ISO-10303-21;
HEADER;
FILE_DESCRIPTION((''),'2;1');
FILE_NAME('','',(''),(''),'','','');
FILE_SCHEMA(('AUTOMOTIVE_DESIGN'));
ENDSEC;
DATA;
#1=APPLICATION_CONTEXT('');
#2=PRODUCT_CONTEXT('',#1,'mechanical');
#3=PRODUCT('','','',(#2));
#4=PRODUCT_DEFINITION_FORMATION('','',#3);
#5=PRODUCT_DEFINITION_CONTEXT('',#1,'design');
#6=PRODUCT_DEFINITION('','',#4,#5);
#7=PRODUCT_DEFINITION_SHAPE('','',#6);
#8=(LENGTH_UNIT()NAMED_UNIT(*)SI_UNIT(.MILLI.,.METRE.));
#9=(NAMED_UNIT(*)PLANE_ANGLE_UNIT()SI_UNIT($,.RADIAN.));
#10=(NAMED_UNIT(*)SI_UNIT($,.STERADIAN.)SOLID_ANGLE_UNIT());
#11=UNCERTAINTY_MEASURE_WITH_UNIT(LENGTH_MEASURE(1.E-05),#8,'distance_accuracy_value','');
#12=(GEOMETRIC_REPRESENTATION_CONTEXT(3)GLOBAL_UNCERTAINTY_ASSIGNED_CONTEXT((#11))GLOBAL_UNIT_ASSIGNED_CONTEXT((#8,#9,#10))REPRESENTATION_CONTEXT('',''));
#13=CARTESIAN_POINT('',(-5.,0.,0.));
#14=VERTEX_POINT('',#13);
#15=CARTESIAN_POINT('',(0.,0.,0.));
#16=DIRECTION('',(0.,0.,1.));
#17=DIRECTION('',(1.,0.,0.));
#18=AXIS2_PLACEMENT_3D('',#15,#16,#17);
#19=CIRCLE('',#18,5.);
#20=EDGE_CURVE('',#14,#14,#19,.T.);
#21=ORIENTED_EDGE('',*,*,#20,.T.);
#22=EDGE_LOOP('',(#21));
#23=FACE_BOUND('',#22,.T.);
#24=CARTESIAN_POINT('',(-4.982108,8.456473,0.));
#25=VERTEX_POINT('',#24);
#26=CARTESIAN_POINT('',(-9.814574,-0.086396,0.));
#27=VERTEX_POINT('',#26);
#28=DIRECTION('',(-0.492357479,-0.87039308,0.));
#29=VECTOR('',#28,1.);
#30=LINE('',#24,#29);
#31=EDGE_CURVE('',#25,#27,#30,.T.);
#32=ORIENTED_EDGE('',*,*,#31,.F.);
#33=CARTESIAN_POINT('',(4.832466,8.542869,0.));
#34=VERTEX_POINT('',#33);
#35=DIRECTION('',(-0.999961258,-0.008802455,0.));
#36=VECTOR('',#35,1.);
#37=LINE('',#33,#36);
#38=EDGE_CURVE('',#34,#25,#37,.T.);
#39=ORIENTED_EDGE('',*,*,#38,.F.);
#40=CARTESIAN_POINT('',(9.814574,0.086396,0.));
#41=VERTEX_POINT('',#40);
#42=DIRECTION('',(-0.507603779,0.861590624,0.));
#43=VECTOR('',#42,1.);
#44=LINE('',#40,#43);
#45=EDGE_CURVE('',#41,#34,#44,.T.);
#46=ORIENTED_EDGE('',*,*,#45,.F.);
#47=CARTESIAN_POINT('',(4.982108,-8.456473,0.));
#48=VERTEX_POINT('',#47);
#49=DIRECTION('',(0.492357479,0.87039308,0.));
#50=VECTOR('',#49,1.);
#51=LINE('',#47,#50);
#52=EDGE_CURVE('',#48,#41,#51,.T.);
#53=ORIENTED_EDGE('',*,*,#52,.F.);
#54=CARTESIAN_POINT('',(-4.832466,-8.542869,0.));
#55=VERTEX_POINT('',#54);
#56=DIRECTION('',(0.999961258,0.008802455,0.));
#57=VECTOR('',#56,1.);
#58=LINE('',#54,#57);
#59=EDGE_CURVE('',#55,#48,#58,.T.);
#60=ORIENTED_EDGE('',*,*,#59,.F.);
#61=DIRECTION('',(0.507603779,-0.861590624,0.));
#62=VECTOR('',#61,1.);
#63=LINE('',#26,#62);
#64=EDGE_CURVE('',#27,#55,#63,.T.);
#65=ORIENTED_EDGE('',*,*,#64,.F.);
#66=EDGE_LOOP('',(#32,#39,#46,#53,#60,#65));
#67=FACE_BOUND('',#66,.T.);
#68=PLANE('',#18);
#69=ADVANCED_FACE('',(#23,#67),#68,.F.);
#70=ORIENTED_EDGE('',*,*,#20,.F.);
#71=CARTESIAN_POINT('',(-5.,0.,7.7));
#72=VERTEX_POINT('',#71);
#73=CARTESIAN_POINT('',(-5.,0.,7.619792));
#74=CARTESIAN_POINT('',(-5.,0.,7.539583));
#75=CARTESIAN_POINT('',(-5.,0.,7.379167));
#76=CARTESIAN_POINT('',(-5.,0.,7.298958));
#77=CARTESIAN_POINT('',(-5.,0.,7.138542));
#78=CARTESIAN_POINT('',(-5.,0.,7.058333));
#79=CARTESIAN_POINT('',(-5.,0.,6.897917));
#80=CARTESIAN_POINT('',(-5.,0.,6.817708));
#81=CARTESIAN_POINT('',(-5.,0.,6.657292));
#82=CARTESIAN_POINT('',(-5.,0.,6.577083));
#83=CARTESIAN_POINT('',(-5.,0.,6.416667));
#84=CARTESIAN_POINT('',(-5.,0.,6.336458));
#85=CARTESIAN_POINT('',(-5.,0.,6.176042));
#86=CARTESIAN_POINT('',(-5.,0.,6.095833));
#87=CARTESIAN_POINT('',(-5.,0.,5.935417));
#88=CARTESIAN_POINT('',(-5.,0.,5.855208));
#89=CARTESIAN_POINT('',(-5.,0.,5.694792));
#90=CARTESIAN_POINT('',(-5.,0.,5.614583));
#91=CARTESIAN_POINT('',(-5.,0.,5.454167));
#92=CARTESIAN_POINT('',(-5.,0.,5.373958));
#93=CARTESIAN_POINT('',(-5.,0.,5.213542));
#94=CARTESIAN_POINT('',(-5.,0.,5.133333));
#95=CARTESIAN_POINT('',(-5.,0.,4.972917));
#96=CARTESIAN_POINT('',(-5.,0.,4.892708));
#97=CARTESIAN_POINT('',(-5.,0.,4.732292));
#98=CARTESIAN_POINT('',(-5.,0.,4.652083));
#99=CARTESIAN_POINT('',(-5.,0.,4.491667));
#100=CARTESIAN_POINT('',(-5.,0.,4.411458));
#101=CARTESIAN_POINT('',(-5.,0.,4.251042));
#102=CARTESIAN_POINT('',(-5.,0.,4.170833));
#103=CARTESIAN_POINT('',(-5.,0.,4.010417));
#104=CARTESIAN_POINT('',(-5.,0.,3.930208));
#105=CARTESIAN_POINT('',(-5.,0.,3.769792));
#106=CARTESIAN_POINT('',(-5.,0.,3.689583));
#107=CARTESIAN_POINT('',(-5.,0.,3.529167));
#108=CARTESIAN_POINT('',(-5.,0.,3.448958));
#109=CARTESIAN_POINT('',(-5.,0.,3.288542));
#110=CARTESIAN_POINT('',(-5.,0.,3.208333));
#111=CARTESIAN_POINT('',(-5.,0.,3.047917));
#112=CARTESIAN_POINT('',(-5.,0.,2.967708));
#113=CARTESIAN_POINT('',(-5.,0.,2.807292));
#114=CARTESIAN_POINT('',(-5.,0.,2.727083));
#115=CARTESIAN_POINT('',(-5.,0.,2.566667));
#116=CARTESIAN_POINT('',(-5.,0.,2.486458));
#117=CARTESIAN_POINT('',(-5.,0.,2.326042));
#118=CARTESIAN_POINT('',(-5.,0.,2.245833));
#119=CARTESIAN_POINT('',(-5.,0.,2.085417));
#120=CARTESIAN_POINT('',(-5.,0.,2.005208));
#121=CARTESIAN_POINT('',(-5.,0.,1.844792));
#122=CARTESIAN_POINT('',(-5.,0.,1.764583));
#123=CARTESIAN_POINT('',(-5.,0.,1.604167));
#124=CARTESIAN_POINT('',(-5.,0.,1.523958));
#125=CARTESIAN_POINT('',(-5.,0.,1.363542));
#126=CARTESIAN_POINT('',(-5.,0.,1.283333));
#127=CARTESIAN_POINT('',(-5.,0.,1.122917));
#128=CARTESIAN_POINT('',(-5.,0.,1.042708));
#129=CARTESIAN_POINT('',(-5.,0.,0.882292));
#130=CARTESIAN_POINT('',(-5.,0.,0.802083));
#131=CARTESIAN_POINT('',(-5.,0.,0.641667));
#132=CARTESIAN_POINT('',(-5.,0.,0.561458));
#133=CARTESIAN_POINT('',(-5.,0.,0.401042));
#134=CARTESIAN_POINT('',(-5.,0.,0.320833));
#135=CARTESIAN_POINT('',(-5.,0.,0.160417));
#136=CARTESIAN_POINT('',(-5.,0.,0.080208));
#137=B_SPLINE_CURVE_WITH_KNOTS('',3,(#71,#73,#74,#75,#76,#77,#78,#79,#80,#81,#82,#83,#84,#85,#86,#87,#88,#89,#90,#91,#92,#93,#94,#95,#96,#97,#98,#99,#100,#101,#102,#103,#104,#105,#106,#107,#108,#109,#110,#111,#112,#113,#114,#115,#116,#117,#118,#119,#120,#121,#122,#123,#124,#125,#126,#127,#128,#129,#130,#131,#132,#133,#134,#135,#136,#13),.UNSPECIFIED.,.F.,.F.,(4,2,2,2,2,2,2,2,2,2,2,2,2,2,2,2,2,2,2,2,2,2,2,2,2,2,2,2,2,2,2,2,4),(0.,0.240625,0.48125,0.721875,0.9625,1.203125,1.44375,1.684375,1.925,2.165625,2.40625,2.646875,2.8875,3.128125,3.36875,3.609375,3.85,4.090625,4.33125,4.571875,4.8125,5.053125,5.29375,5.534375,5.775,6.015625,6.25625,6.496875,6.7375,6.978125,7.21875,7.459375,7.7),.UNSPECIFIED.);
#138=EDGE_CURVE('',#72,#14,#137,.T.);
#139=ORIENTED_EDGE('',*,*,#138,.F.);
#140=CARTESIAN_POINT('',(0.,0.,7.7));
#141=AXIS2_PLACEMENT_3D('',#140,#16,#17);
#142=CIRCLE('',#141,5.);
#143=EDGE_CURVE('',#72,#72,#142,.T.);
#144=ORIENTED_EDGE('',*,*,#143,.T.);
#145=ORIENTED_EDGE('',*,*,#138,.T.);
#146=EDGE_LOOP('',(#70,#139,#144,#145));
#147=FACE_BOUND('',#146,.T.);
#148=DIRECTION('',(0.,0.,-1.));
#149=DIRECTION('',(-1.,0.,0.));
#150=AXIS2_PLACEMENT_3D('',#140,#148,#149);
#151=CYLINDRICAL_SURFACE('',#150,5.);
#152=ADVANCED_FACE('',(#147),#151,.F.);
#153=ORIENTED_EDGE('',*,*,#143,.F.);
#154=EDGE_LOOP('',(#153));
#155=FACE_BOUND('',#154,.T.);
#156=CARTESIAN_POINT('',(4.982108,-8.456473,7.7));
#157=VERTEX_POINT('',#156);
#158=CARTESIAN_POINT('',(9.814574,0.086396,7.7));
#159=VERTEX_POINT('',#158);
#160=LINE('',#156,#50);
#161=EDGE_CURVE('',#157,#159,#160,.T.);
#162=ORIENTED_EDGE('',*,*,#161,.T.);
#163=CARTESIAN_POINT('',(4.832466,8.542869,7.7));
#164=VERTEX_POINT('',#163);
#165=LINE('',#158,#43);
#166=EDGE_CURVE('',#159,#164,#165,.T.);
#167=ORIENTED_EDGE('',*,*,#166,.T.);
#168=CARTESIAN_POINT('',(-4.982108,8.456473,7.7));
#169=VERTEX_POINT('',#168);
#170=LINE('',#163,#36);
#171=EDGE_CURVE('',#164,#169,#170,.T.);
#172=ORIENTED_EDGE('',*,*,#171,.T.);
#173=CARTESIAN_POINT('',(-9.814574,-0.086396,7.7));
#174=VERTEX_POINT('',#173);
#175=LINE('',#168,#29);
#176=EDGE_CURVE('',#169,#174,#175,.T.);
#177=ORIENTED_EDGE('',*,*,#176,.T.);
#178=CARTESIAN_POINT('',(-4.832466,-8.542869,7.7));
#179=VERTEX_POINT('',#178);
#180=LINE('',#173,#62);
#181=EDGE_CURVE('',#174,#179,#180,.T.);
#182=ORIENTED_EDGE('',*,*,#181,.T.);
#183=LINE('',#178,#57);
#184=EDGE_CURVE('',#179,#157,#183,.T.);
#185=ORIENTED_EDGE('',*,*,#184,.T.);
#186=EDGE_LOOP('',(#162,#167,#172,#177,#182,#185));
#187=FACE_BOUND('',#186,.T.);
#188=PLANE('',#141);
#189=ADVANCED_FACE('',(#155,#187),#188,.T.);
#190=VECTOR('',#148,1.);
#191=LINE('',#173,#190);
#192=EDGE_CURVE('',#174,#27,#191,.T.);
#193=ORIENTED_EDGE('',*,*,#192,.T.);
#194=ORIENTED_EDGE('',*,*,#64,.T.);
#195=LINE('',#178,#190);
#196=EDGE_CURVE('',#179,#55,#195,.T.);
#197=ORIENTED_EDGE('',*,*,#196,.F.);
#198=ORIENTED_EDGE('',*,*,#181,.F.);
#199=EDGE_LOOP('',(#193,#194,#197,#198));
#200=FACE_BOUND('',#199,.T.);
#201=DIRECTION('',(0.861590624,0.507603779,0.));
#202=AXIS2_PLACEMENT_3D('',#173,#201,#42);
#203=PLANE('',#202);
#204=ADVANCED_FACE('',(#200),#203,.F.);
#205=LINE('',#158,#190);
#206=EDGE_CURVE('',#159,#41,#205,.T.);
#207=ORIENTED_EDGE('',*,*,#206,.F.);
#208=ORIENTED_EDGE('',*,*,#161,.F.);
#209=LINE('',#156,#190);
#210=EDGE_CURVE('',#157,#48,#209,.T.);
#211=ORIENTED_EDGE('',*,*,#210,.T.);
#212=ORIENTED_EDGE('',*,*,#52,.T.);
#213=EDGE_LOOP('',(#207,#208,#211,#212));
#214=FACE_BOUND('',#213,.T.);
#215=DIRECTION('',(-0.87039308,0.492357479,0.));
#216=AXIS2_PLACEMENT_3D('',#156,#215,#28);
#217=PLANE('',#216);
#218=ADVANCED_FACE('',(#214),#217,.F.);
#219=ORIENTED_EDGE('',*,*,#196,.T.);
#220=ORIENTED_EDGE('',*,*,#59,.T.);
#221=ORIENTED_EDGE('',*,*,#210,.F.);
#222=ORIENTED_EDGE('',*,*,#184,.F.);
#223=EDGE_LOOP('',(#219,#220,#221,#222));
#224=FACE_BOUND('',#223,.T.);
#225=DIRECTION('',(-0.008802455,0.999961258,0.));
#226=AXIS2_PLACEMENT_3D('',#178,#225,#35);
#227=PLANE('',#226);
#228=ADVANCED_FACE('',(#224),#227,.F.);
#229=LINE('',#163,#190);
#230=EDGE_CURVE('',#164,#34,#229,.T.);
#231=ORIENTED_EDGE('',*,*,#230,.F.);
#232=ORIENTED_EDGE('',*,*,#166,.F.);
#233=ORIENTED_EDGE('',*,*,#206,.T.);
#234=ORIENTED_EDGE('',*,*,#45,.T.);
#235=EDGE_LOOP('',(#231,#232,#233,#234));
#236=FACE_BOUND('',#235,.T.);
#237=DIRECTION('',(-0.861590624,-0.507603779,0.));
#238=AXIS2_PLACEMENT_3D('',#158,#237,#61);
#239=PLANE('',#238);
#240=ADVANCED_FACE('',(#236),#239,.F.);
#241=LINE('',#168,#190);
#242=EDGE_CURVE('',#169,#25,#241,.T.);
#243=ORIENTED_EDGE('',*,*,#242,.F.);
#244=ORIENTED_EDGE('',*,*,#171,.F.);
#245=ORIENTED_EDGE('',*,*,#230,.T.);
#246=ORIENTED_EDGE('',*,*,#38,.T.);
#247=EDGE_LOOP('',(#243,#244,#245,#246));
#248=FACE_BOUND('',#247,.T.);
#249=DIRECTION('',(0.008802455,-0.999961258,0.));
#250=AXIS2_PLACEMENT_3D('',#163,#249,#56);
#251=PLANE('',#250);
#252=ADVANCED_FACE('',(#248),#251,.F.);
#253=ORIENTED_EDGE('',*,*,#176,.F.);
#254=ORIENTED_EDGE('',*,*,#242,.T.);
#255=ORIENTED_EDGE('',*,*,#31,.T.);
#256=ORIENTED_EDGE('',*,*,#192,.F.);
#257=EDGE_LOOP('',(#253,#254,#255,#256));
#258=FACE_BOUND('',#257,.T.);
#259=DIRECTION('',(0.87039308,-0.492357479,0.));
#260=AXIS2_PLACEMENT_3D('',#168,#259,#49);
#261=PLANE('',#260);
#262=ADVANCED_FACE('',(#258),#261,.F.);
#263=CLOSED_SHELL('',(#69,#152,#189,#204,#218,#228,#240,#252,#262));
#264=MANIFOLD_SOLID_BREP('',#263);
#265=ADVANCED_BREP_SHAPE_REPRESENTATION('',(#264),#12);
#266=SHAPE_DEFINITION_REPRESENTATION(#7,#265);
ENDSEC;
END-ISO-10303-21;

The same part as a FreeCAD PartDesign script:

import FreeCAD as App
import Part
import Sketcher

V = App.Vector
Q = App.Units.Quantity

doc = App.newDocument("Part")
body = doc.addObject("PartDesign::Body", "Body")

# Sketch on XY plane
sketch1 = doc.addObject("Sketcher::SketchObject", "Sketch")
body.addObject(sketch1)
sketch1.AttachmentSupport = (doc.XY_Plane, [""])
sketch1.MapMode = "FlatFace"
sketch1.addGeometry(Part.LineSegment(V(5, -8, 0), V(10, 0, 0)), False)
sketch1.addGeometry(Part.LineSegment(V(10, 0, 0), V(5, 9, 0)), False)
sketch1.addGeometry(Part.LineSegment(V(5, 9, 0), V(-5, 8, 0)), False)
sketch1.addGeometry(Part.LineSegment(V(-5, 8, 0), V(-10, 0, 0)), False)
sketch1.addGeometry(Part.LineSegment(V(-10, 0, 0), V(-5, -9, 0)), False)
sketch1.addGeometry(Part.LineSegment(V(-5, -9, 0), V(5, -8, 0)), False)
sketch1.addGeometry(Part.Circle(V(0, 0, 0), V(0, 0, 1), 5), False)
sketch1.addConstraint(Sketcher.Constraint("Coincident", 0, 2, 1, 1))
sketch1.addConstraint(Sketcher.Constraint("Coincident", 1, 2, 2, 1))
sketch1.addConstraint(Sketcher.Constraint("Coincident", 2, 2, 3, 1))
sketch1.addConstraint(Sketcher.Constraint("Coincident", 3, 2, 4, 1))
sketch1.addConstraint(Sketcher.Constraint("Coincident", 4, 2, 5, 1))
sketch1.addConstraint(Sketcher.Constraint("Coincident", 5, 2, 0, 1))
sketch1.addConstraint(Sketcher.Constraint("Coincident", 6, 3, -1, 1))
sketch1.addConstraint(Sketcher.Constraint("Symmetric", 0, 2, 3, 2, -1, 1))
sketch1.addConstraint(Sketcher.Constraint("Symmetric", 1, 2, 4, 2, -1, 1))
sketch1.addConstraint(Sketcher.Constraint("Symmetric", 2, 2, 5, 2, -1, 1))
sketch1.addConstraint(Sketcher.Constraint("Equal", 0, 1))
sketch1.addConstraint(Sketcher.Constraint("Equal", 1, 2))
sketch1.addConstraint(Sketcher.Constraint("Diameter", 6, Q("10 mm")))
sketch1.addConstraint(Sketcher.Constraint("DistanceY", -1, 1, 1, 2, Q("8.542869 mm")))
sketch1.addConstraint(Sketcher.Constraint("DistanceX", 2, 2, -1, 1, Q("4.982108 mm")))
sketch1.addConstraint(Sketcher.Constraint("DistanceX", 1, 2, 0, 2, Q("4.982108 mm")))
sketch1.addConstraint(Sketcher.Constraint("DistanceY", 3, 2, 2, 2, Q("8.542869 mm")))
pad1 = doc.addObject("PartDesign::Pad", "Pad")
body.addObject(pad1)
pad1.Profile = sketch1
pad1.Length = 7.7

doc.recompute()
